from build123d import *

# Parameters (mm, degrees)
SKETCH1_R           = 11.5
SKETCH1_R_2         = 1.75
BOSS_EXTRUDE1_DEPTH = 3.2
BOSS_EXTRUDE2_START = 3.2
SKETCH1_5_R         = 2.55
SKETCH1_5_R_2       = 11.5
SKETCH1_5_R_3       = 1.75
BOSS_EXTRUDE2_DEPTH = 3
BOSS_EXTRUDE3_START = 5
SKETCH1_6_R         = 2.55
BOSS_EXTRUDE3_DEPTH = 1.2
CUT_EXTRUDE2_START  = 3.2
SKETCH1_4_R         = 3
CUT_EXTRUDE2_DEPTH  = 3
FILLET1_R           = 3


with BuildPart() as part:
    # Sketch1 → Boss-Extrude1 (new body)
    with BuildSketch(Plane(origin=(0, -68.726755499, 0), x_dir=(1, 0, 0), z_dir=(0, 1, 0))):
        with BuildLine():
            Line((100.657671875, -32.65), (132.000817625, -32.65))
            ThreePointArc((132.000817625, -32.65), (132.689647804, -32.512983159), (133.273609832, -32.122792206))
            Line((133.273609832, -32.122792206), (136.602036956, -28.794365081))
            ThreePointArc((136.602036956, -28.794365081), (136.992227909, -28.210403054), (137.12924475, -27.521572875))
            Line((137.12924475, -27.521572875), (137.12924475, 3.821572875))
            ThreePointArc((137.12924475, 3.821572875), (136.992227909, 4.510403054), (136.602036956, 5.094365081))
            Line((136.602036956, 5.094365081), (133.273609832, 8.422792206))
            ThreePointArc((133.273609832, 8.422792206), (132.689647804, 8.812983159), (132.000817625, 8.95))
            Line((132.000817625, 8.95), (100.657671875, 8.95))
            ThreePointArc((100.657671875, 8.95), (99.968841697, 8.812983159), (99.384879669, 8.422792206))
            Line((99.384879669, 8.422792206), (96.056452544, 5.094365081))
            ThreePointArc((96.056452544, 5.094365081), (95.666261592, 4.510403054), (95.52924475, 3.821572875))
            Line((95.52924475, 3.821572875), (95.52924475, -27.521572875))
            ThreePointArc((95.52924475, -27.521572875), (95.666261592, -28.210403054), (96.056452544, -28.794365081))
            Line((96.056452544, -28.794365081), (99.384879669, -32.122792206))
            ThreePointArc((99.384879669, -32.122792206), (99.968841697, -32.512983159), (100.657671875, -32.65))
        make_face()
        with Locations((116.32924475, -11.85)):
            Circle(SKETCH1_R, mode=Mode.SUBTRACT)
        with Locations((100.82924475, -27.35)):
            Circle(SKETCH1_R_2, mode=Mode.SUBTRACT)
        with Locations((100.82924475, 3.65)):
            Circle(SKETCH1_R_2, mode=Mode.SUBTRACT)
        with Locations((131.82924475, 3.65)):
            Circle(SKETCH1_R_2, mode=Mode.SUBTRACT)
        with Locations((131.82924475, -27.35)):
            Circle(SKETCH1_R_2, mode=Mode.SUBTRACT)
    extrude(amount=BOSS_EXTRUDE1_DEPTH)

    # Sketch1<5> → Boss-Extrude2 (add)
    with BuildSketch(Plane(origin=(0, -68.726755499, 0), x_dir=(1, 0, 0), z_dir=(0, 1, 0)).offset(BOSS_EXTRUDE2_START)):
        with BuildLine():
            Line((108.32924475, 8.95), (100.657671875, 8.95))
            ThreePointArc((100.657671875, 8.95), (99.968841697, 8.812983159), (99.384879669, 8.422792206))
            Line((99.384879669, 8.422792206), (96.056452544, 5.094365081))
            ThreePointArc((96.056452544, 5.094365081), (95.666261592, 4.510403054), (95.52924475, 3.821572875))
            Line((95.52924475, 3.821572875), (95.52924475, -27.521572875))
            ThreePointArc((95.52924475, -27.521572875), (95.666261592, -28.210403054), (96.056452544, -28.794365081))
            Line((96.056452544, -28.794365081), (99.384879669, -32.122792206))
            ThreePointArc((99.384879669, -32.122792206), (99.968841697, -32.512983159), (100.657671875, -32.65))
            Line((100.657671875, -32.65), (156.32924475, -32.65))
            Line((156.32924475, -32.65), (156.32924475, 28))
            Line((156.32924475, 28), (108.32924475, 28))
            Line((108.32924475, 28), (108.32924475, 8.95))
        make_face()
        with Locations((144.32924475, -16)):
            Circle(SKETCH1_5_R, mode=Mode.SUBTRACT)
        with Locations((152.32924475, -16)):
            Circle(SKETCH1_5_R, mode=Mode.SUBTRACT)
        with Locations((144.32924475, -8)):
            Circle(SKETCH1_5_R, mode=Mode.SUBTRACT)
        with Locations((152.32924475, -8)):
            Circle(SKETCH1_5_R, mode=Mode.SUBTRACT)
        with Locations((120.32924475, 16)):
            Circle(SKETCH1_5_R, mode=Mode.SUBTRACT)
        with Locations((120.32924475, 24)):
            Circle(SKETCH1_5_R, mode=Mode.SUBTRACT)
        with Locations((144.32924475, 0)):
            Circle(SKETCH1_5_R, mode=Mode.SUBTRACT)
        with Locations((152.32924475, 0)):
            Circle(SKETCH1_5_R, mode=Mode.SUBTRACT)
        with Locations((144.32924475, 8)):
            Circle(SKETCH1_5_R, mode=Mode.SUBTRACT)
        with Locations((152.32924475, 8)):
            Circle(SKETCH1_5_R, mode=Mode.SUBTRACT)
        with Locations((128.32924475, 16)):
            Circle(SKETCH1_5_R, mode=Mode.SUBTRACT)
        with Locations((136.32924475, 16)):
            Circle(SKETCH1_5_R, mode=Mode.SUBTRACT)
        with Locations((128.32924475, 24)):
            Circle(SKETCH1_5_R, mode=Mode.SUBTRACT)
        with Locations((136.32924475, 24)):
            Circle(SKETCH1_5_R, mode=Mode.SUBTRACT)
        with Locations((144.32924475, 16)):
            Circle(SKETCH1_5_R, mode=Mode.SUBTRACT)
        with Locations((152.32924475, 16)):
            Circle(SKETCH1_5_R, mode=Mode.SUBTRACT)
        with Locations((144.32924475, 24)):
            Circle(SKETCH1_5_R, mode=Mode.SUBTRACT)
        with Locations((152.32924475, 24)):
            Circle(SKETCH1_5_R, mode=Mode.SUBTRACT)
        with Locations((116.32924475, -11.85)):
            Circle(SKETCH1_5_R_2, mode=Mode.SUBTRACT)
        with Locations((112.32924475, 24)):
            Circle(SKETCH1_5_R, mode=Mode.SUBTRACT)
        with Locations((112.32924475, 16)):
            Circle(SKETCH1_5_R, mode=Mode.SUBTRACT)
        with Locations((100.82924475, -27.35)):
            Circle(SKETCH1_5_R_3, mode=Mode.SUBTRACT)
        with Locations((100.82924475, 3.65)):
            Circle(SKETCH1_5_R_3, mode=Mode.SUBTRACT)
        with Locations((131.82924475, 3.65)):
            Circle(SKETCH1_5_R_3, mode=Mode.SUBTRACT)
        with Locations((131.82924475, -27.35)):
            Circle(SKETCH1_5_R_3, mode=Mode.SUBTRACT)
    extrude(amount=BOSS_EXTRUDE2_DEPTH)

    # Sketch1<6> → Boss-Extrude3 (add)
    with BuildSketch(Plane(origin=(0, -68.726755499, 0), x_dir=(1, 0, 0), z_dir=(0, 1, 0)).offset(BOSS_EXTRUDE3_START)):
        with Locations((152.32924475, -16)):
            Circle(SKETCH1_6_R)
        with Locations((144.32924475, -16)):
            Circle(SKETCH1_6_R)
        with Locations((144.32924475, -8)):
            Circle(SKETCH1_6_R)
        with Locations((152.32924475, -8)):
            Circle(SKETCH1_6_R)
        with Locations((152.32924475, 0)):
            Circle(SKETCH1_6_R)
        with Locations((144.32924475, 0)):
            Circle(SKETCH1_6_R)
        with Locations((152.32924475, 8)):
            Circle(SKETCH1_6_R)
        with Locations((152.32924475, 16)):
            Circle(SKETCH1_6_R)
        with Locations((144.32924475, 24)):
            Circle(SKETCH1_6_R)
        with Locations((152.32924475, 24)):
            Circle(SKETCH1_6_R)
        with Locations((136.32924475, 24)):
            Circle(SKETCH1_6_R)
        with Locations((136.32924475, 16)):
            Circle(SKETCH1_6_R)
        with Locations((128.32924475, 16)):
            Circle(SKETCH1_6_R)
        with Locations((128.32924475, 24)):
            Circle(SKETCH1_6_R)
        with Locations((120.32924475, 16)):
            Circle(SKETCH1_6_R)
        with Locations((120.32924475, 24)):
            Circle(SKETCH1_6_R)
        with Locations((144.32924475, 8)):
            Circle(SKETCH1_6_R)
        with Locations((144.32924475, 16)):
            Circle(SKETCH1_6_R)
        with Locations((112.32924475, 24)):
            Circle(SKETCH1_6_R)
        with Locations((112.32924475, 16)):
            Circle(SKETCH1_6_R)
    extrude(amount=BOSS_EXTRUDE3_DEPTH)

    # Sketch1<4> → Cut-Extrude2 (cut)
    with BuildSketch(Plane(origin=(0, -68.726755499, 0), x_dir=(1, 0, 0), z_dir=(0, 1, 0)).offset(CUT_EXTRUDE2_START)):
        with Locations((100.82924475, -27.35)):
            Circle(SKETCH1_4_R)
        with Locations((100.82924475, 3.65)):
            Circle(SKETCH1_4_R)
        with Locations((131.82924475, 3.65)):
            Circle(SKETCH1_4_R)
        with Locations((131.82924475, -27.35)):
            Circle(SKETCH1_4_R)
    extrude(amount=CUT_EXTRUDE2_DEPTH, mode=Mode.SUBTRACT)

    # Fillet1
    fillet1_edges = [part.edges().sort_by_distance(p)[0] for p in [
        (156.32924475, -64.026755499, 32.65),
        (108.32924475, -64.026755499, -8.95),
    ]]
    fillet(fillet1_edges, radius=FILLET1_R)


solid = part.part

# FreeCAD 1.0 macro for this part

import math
import FreeCAD as App
import Part
import Sketcher

V = App.Vector


def edges_at(feature, points):
    """Names of the edges that pass closest to the given points."""
    edges = feature.Shape.Edges
    near = lambda p: min(range(len(edges)), key=lambda i: edges[i].distToShape(Part.Vertex(*p))[0])
    return sorted({f"Edge{near(p) + 1}" for p in points})

doc = App.newDocument("Part")
body = doc.addObject("PartDesign::Body", "Body")

sketch1 = body.newObject("Sketcher::SketchObject", "Sketch")
sketch1.AttachmentSupport = (doc.getObject("XZ_Plane"), [""])
sketch1.MapMode = "FlatFace"
sketch1.AttachmentOffset = App.Placement(V(0, 0, 68.726755), App.Rotation())
sketch1.addGeometry([
    Part.LineSegment(V(100.7, 32.6, 0), V(132, 32.6, 0)),
    Part.ArcOfCircle(Part.Circle(V(132, 30.9, 0), V(0, 0, 1), 1.8), math.radians(45), math.radians(90)),
    Part.LineSegment(V(133.3, 32.1, 0), V(136.6, 28.8, 0)),
    Part.ArcOfCircle(Part.Circle(V(135.3, 27.5, 0), V(0, 0, 1), 1.8), math.radians(0), math.radians(45)),
    Part.LineSegment(V(137.1, 27.5, 0), V(137.1, -3.8, 0)),
    Part.ArcOfCircle(Part.Circle(V(135.3, -3.8, 0), V(0, 0, 1), 1.8), math.radians(-45), math.radians(0)),
    Part.LineSegment(V(136.6, -5.1, 0), V(133.3, -8.4, 0)),
    Part.ArcOfCircle(Part.Circle(V(132, -7.2, 0), V(0, 0, 1), 1.8), math.radians(-90), math.radians(-45)),
    Part.LineSegment(V(132, -8.9, 0), V(100.7, -8.9, 0)),
    Part.ArcOfCircle(Part.Circle(V(100.7, -7.2, 0), V(0, 0, 1), 1.8), math.radians(-135), math.radians(-90)),
    Part.LineSegment(V(99.4, -8.4, 0), V(96.1, -5.1, 0)),
    Part.ArcOfCircle(Part.Circle(V(97.3, -3.8, 0), V(0, 0, 1), 1.8), math.radians(-180), math.radians(-135)),
    Part.LineSegment(V(95.5, -3.8, 0), V(95.5, 27.5, 0)),
    Part.ArcOfCircle(Part.Circle(V(97.3, 27.5, 0), V(0, 0, 1), 1.8), math.radians(135), math.radians(180)),
    Part.LineSegment(V(96.1, 28.8, 0), V(99.4, 32.1, 0)),
    Part.ArcOfCircle(Part.Circle(V(100.7, 30.9, 0), V(0, 0, 1), 1.8), math.radians(90), math.radians(135)),
    Part.Circle(V(100.8, 27.4, 0), V(0, 0, 1), 1.8),
    Part.Circle(V(131.8, 27.4, 0), V(0, 0, 1), 1.8),
    Part.Circle(V(100.8, -3.6, 0), V(0, 0, 1), 1.8),
    Part.Circle(V(116.3, 11.8, 0), V(0, 0, 1), 11.5),
    Part.Circle(V(131.8, -3.6, 0), V(0, 0, 1), 1.8),
], False)
sketch1.addConstraint([
    Sketcher.Constraint("Tangent", 0, 2, 1, 2),
    Sketcher.Constraint("Tangent", 1, 1, 2, 1),
    Sketcher.Constraint("Tangent", 2, 2, 3, 2),
    Sketcher.Constraint("Tangent", 3, 1, 4, 1),
    Sketcher.Constraint("Tangent", 4, 2, 5, 2),
    Sketcher.Constraint("Tangent", 5, 1, 6, 1),
    Sketcher.Constraint("Tangent", 6, 2, 7, 2),
    Sketcher.Constraint("Tangent", 7, 1, 8, 1),
    Sketcher.Constraint("Tangent", 8, 2, 9, 2),
    Sketcher.Constraint("Tangent", 9, 1, 10, 1),
    Sketcher.Constraint("Tangent", 10, 2, 11, 2),
    Sketcher.Constraint("Tangent", 11, 1, 12, 1),
    Sketcher.Constraint("Tangent", 12, 2, 13, 2),
    Sketcher.Constraint("Tangent", 13, 1, 14, 1),
    Sketcher.Constraint("Tangent", 14, 2, 15, 2),
    Sketcher.Constraint("Tangent", 15, 1, 0, 1),
    Sketcher.Constraint("Horizontal", 0),
    Sketcher.Constraint("Vertical", 4),
    Sketcher.Constraint("Horizontal", 8),
    Sketcher.Constraint("Vertical", 12),
    Sketcher.Constraint("Equal", 1, 3),
    Sketcher.Constraint("Equal", 3, 5),
    Sketcher.Constraint("Equal", 5, 7),
    Sketcher.Constraint("Equal", 7, 9),
    Sketcher.Constraint("Equal", 9, 11),
    Sketcher.Constraint("Equal", 11, 13),
    Sketcher.Constraint("Equal", 13, 15),
    Sketcher.Constraint("Equal", 16, 17),
    Sketcher.Constraint("Equal", 17, 18),
    Sketcher.Constraint("Equal", 18, 20),
    Sketcher.Constraint("Perpendicular", 2, 6),
    Sketcher.Constraint("Perpendicular", 6, 10),
    Sketcher.Constraint("Perpendicular", 10, 14),
    Sketcher.Constraint("Horizontal", 5, 3, 11, 3),
    Sketcher.Constraint("Horizontal", 3, 3, 13, 3),
    Sketcher.Constraint("Horizontal", 16, 3, 17, 3),
    Sketcher.Constraint("Horizontal", 18, 3, 20, 3),
    Sketcher.Constraint("Horizontal", 6, 2, 9, 1),
    Sketcher.Constraint("Vertical", 1, 3, 7, 3),
    Sketcher.Constraint("Vertical", 16, 3, 18, 3),
    Sketcher.Constraint("Vertical", 17, 3, 20, 3),
    Sketcher.Constraint("Equal", 8, 4),
    Sketcher.Constraint("Diameter", 19, 23.0),
    Sketcher.Constraint("Diameter", 16, 3.5),
    Sketcher.Constraint("Radius", 1, 1.8),
    Sketcher.Constraint("DistanceY", 7, 3, 1, 3, 38.0),
    Sketcher.Constraint("DistanceX", 16, 3, 17, 3, 31.0),
    Sketcher.Constraint("DistanceY", 18, 3, 16, 3, 31.0),
    Sketcher.Constraint("DistanceX", 11, 3, 19, 3, 19.0),
    Sketcher.Constraint("DistanceX", 13, 3, 16, 3, 3.5),
    Sketcher.Constraint("DistanceY", 16, 3, 15, 3, 3.5),
    Sketcher.Constraint("DistanceY", 19, 3, 17, 3, 15.5),
    Sketcher.Constraint("DistanceY", -1, 1, 1, 3, 30.85),
    Sketcher.Constraint("DistanceX", 0, 1, 0, 2, 31.343146),
    Sketcher.Constraint("DistanceX", -1, 1, 9, 3, 100.657672),
])
pad1 = body.newObject("PartDesign::Pad", "Pad")
pad1.Profile = sketch1
pad1.Length = 3.2
pad1.Reversed = True

sketch2 = body.newObject("Sketcher::SketchObject", "Sketch001")
sketch2.AttachmentSupport = (doc.getObject("XZ_Plane"), [""])
sketch2.MapMode = "FlatFace"
sketch2.AttachmentOffset = App.Placement(V(0, 0, 65.526755), App.Rotation())
sketch2.addGeometry([
    Part.LineSegment(V(108.3, -8.9, 0), V(100.7, -8.9, 0)),
    Part.ArcOfCircle(Part.Circle(V(100.7, -7.2, 0), V(0, 0, 1), 1.8), math.radians(-135), math.radians(-90)),
    Part.LineSegment(V(99.4, -8.4, 0), V(96.1, -5.1, 0)),
    Part.ArcOfCircle(Part.Circle(V(97.3, -3.8, 0), V(0, 0, 1), 1.8), math.radians(-180), math.radians(-135)),
    Part.LineSegment(V(95.5, -3.8, 0), V(95.5, 27.5, 0)),
    Part.ArcOfCircle(Part.Circle(V(97.3, 27.5, 0), V(0, 0, 1), 1.8), math.radians(135), math.radians(180)),
    Part.LineSegment(V(96.1, 28.8, 0), V(99.4, 32.1, 0)),
    Part.ArcOfCircle(Part.Circle(V(100.7, 30.9, 0), V(0, 0, 1), 1.8), math.radians(90), math.radians(135)),
    Part.LineSegment(V(100.7, 32.6, 0), V(156.3, 32.6, 0)),
    Part.LineSegment(V(156.3, 32.6, 0), V(156.3, -28, 0)),
    Part.LineSegment(V(156.3, -28, 0), V(108.3, -28, 0)),
    Part.LineSegment(V(108.3, -28, 0), V(108.3, -8.9, 0)),
    Part.Circle(V(100.8, 27.4, 0), V(0, 0, 1), 1.8),
    Part.Circle(V(116.3, 11.8, 0), V(0, 0, 1), 11.5),
    Part.Circle(V(131.8, 27.4, 0), V(0, 0, 1), 1.8),
    Part.Circle(V(144.3, 16, 0), V(0, 0, 1), 2.5),
    Part.Circle(V(152.3, 16, 0), V(0, 0, 1), 2.5),
    Part.Circle(V(144.3, 8, 0), V(0, 0, 1), 2.5),
    Part.Circle(V(152.3, 8, 0), V(0, 0, 1), 2.5),
    Part.Circle(V(100.8, -3.6, 0), V(0, 0, 1), 1.8),
    Part.Circle(V(112.3, -16, 0), V(0, 0, 1), 2.5),
    Part.Circle(V(112.3, -24, 0), V(0, 0, 1), 2.5),
    Part.Circle(V(120.3, -16, 0), V(0, 0, 1), 2.5),
    Part.Circle(V(120.3, -24, 0), V(0, 0, 1), 2.5),
    Part.Circle(V(131.8, -3.6, 0), V(0, 0, 1), 1.8),
    Part.Circle(V(144.3, 0, 0), V(0, 0, 1), 2.5),
    Part.Circle(V(152.3, 0, 0), V(0, 0, 1), 2.5),
    Part.Circle(V(144.3, -8, 0), V(0, 0, 1), 2.5),
    Part.Circle(V(152.3, -8, 0), V(0, 0, 1), 2.5),
    Part.Circle(V(128.3, -16, 0), V(0, 0, 1), 2.5),
    Part.Circle(V(136.3, -16, 0), V(0, 0, 1), 2.5),
    Part.Circle(V(128.3, -24, 0), V(0, 0, 1), 2.5),
    Part.Circle(V(136.3, -24, 0), V(0, 0, 1), 2.5),
    Part.Circle(V(144.3, -16, 0), V(0, 0, 1), 2.5),
    Part.Circle(V(152.3, -16, 0), V(0, 0, 1), 2.5),
    Part.Circle(V(144.3, -24, 0), V(0, 0, 1), 2.5),
    Part.Circle(V(152.3, -24, 0), V(0, 0, 1), 2.5),
], False)
sketch2.addConstraint([
    Sketcher.Constraint("Tangent", 0, 2, 1, 2),
    Sketcher.Constraint("Tangent", 1, 1, 2, 1),
    Sketcher.Constraint("Tangent", 2, 2, 3, 2),
    Sketcher.Constraint("Tangent", 3, 1, 4, 1),
    Sketcher.Constraint("Tangent", 4, 2, 5, 2),
    Sketcher.Constraint("Tangent", 5, 1, 6, 1),
    Sketcher.Constraint("Tangent", 6, 2, 7, 2),
    Sketcher.Constraint("Tangent", 7, 1, 8, 1),
    Sketcher.Constraint("Coincident", 8, 2, 9, 1),
    Sketcher.Constraint("Coincident", 9, 2, 10, 1),
    Sketcher.Constraint("Coincident", 10, 2, 11, 1),
    Sketcher.Constraint("Coincident", 11, 2, 0, 1),
    Sketcher.Constraint("Horizontal", 0),
    Sketcher.Constraint("Vertical", 4),
    Sketcher.Constraint("Horizontal", 8),
    Sketcher.Constraint("Vertical", 9),
    Sketcher.Constraint("Horizontal", 10),
    Sketcher.Constraint("Vertical", 11),
    Sketcher.Constraint("Equal", 1, 3),
    Sketcher.Constraint("Equal", 3, 5),
    Sketcher.Constraint("Equal", 5, 7),
    Sketcher.Constraint("Equal", 12, 14),
    Sketcher.Constraint("Equal", 15, 16),
    Sketcher.Constraint("Equal", 16, 17),
    Sketcher.Constraint("Equal", 17, 18),
    Sketcher.Constraint("Equal", 14, 19),
    Sketcher.Constraint("Equal", 18, 20),
    Sketcher.Constraint("Equal", 20, 21),
    Sketcher.Constraint("Equal", 21, 22),
    Sketcher.Constraint("Equal", 22, 23),
    Sketcher.Constraint("Equal", 19, 24),
    Sketcher.Constraint("Equal", 23, 25),
    Sketcher.Constraint("Equal", 25, 26),
    Sketcher.Constraint("Equal", 26, 27),
    Sketcher.Constraint("Equal", 27, 28),
    Sketcher.Constraint("Equal", 28, 29),
    Sketcher.Constraint("Equal", 29, 30),
    Sketcher.Constraint("Equal", 30, 31),
    Sketcher.Constraint("Equal", 31, 32),
    Sketcher.Constraint("Equal", 32, 33),
    Sketcher.Constraint("Equal", 33, 34),
    Sketcher.Constraint("Equal", 34, 35),
    Sketcher.Constraint("Equal", 35, 36),
    Sketcher.Constraint("Symmetric", 17, 3, 27, 3, -1),
    Sketcher.Constraint("Symmetric", 18, 3, 28, 3, -1),
    Sketcher.Constraint("Symmetric", 15, 3, 33, 3, -1),
    Sketcher.Constraint("Symmetric", 16, 3, 34, 3, -1),
    Sketcher.Constraint("PointOnObject", 25, 3, -1),
    Sketcher.Constraint("PointOnObject", 26, 3, -1),
    Sketcher.Constraint("Perpendicular", 2, 6),
    Sketcher.Constraint("Horizontal", 12, 3, 14, 3),
    Sketcher.Constraint("Horizontal", 15, 3, 16, 3),
    Sketcher.Constraint("Horizontal", 17, 3, 18, 3),
    Sketcher.Constraint("Horizontal", 20, 3, 22, 3),
    Sketcher.Constraint("Horizontal", 21, 3, 23, 3),
    Sketcher.Constraint("Horizontal", 19, 3, 24, 3),
    Sketcher.Constraint("Horizontal", 22, 3, 29, 3),
    Sketcher.Constraint("Horizontal", 29, 3, 30, 3),
    Sketcher.Constraint("Horizontal", 23, 3, 31, 3),
    Sketcher.Constraint("Horizontal", 31, 3, 32, 3),
    Sketcher.Constraint("Horizontal", 30, 3, 33, 3),
    Sketcher.Constraint("Horizontal", 32, 3, 35, 3),
    Sketcher.Constraint("Horizontal", 35, 3, 36, 3),
    Sketcher.Constraint("Vertical", 1, 3, 7, 3),
    Sketcher.Constraint("Vertical", 15, 3, 17, 3),
    Sketcher.Constraint("Vertical", 16, 3, 18, 3),
    Sketcher.Constraint("Vertical", 12, 3, 19, 3),
    Sketcher.Constraint("Vertical", 20, 3, 21, 3),
    Sketcher.Constraint("Vertical", 22, 3, 23, 3),
    Sketcher.Constraint("Vertical", 14, 3, 24, 3),
    Sketcher.Constraint("Vertical", 17, 3, 25, 3),
    Sketcher.Constraint("Vertical", 18, 3, 26, 3),
    Sketcher.Constraint("Vertical", 29, 3, 31, 3),
    Sketcher.Constraint("Vertical", 30, 3, 32, 3),
    Sketcher.Constraint("Vertical", 33, 3, 35, 3),
    Sketcher.Constraint("Vertical", 34, 3, 36, 3),
    Sketcher.Constraint("Vertical", 2, 2, 5, 1),
    Sketcher.Constraint("Diameter", 13, 23.0),
    Sketcher.Constraint("Diameter", 12, 3.5),
    Sketcher.Constraint("Diameter", 15, 5.1),
    Sketcher.Constraint("Radius", 1, 1.8),
    Sketcher.Constraint("DistanceX", 10, 2, 10, 1, 48.0),
    Sketcher.Constraint("DistanceY", -1, 1, 15, 3, 16.0),
    Sketcher.Constraint("DistanceY", -1, 1, 17, 3, 8.0),
    Sketcher.Constraint("DistanceY", 21, 3, -1, 1, 24.0),
    Sketcher.Constraint("DistanceY", 9, 2, -1, 1, 28.0),
    Sketcher.Constraint("DistanceY", 1, 3, 7, 3, 38.0),
    Sketcher.Constraint("DistanceX", 3, 3, 13, 3, 19.0),
    Sketcher.Constraint("DistanceY", 13, 3, 7, 3, 19.0),
    Sketcher.Constraint("DistanceX", 12, 3, 14, 3, 31.0),
    Sketcher.Constraint("DistanceX", 13, 3, 15, 3, 28.0),
    Sketcher.Constraint("DistanceX", 15, 3, 16, 3, 8.0),
    Sketcher.Constraint("DistanceY", 19, 3, 12, 3, 31.0),
    Sketcher.Constraint("DistanceX", 3, 3, 20, 3, 15.0),
    Sketcher.Constraint("DistanceX", 20, 3, 22, 3, 8.0),
    Sketcher.Constraint("DistanceX", 22, 3, 29, 3, 8.0),
    Sketcher.Constraint("DistanceX", 29, 3, 30, 3, 8.0),
    Sketcher.Constraint("DistanceX", 16, 3, 8, 2, 4.0),
    Sketcher.Constraint("DistanceY", 9, 2, 9, 1, 60.65),
    Sketcher.Constraint("DistanceX", 5, 3, 12, 3, 3.5),
    Sketcher.Constraint("DistanceY", 12, 3, 7, 3, 3.5),
    Sketcher.Constraint("DistanceX", 0, 2, 0, 1, 7.671573),
    Sketcher.Constraint("DistanceX", -1, 1, 1, 3, 100.657672),
])
pad2 = body.newObject("PartDesign::Pad", "Pad001")
pad2.Profile = sketch2
pad2.Length = 3
pad2.Reversed = True

sketch3 = body.newObject("Sketcher::SketchObject", "Sketch002")
sketch3.AttachmentSupport = (doc.getObject("XZ_Plane"), [""])
sketch3.MapMode = "FlatFace"
sketch3.AttachmentOffset = App.Placement(V(0, 0, 63.726755), App.Rotation())
sketch3.addGeometry([
    Part.Circle(V(152.3, 16, 0), V(0, 0, 1), 2.5),
    Part.Circle(V(144.3, 16, 0), V(0, 0, 1), 2.5),
    Part.Circle(V(144.3, 8, 0), V(0, 0, 1), 2.5),
    Part.Circle(V(152.3, 8, 0), V(0, 0, 1), 2.5),
    Part.Circle(V(152.3, 0, 0), V(0, 0, 1), 2.5),
    Part.Circle(V(144.3, 0, 0), V(0, 0, 1), 2.5),
    Part.Circle(V(152.3, -8, 0), V(0, 0, 1), 2.5),
    Part.Circle(V(152.3, -16, 0), V(0, 0, 1), 2.5),
    Part.Circle(V(144.3, -24, 0), V(0, 0, 1), 2.5),
    Part.Circle(V(152.3, -24, 0), V(0, 0, 1), 2.5),
    Part.Circle(V(136.3, -24, 0), V(0, 0, 1), 2.5),
    Part.Circle(V(136.3, -16, 0), V(0, 0, 1), 2.5),
    Part.Circle(V(128.3, -16, 0), V(0, 0, 1), 2.5),
    Part.Circle(V(128.3, -24, 0), V(0, 0, 1), 2.5),
    Part.Circle(V(120.3, -16, 0), V(0, 0, 1), 2.5),
    Part.Circle(V(120.3, -24, 0), V(0, 0, 1), 2.5),
    Part.Circle(V(144.3, -8, 0), V(0, 0, 1), 2.5),
    Part.Circle(V(144.3, -16, 0), V(0, 0, 1), 2.5),
    Part.Circle(V(112.3, -24, 0), V(0, 0, 1), 2.5),
    Part.Circle(V(112.3, -16, 0), V(0, 0, 1), 2.5),
], False)
sketch3.addConstraint([
    Sketcher.Constraint("Equal", 0, 1),
    Sketcher.Constraint("Equal", 1, 2),
    Sketcher.Constraint("Equal", 2, 3),
    Sketcher.Constraint("Equal", 3, 4),
    Sketcher.Constraint("Equal", 4, 5),
    Sketcher.Constraint("Equal", 5, 6),
    Sketcher.Constraint("Equal", 6, 7),
    Sketcher.Constraint("Equal", 7, 8),
    Sketcher.Constraint("Equal", 8, 9),
    Sketcher.Constraint("Equal", 9, 10),
    Sketcher.Constraint("Equal", 10, 11),
    Sketcher.Constraint("Equal", 11, 12),
    Sketcher.Constraint("Equal", 12, 13),
    Sketcher.Constraint("Equal", 13, 14),
    Sketcher.Constraint("Equal", 14, 15),
    Sketcher.Constraint("Equal", 15, 16),
    Sketcher.Constraint("Equal", 16, 17),
    Sketcher.Constraint("Equal", 17, 18),
    Sketcher.Constraint("Equal", 18, 19),
    Sketcher.Constraint("Symmetric", 3, 3, 6, 3, -1),
    Sketcher.Constraint("Symmetric", 0, 3, 7, 3, -1),
    Sketcher.Constraint("Symmetric", 2, 3, 16, 3, -1),
    Sketcher.Constraint("Symmetric", 1, 3, 17, 3, -1),
    Sketcher.Constraint("PointOnObject", 4, 3, -1),
    Sketcher.Constraint("PointOnObject", 5, 3, -1),
    Sketcher.Constraint("Horizontal", 0, 3, 1, 3),
    Sketcher.Constraint("Horizontal", 2, 3, 3, 3),
    Sketcher.Constraint("Horizontal", 8, 3, 9, 3),
    Sketcher.Constraint("Horizontal", 9, 3, 10, 3),
    Sketcher.Constraint("Horizontal", 7, 3, 11, 3),
    Sketcher.Constraint("Horizontal", 11, 3, 12, 3),
    Sketcher.Constraint("Horizontal", 10, 3, 13, 3),
    Sketcher.Constraint("Horizontal", 12, 3, 14, 3),
    Sketcher.Constraint("Horizontal", 13, 3, 15, 3),
    Sketcher.Constraint("Horizontal", 15, 3, 18, 3),
    Sketcher.Constraint("Horizontal", 17, 3, 19, 3),
    Sketcher.Constraint("Vertical", 1, 3, 2, 3),
    Sketcher.Constraint("Vertical", 0, 3, 3, 3),
    Sketcher.Constraint("Vertical", 3, 3, 4, 3),
    Sketcher.Constraint("Vertical", 2, 3, 5, 3),
    Sketcher.Constraint("Vertical", 5, 3, 8, 3),
    Sketcher.Constraint("Vertical", 7, 3, 9, 3),
    Sketcher.Constraint("Vertical", 10, 3, 11, 3),
    Sketcher.Constraint("Vertical", 12, 3, 13, 3),
    Sketcher.Constraint("Vertical", 14, 3, 15, 3),
    Sketcher.Constraint("Vertical", 18, 3, 19, 3),
    Sketcher.Constraint("Diameter", 0, 5.1),
    Sketcher.Constraint("DistanceY", -1, 1, 0, 3, 16.0),
    Sketcher.Constraint("DistanceY", -1, 1, 2, 3, 8.0),
    Sketcher.Constraint("DistanceY", 8, 3, -1, 1, 24.0),
    Sketcher.Constraint("DistanceX", 1, 3, 0, 3, 8.0),
    Sketcher.Constraint("DistanceX", 10, 3, 8, 3, 8.0),
    Sketcher.Constraint("DistanceX", 12, 3, 11, 3, 8.0),
    Sketcher.Constraint("DistanceX", 14, 3, 12, 3, 8.0),
    Sketcher.Constraint("DistanceX", 18, 3, 15, 3, 8.0),
    Sketcher.Constraint("DistanceX", -1, 1, 0, 3, 152.329245),
])
pad3 = body.newObject("PartDesign::Pad", "Pad002")
pad3.Profile = sketch3
pad3.Length = 1.2
pad3.Reversed = True

sketch4 = body.newObject("Sketcher::SketchObject", "Sketch003")
sketch4.AttachmentSupport = (doc.getObject("XZ_Plane"), [""])
sketch4.MapMode = "FlatFace"
sketch4.AttachmentOffset = App.Placement(V(0, 0, 65.526755), App.Rotation())
sketch4.addGeometry([
    Part.Circle(V(100.8, 27.4, 0), V(0, 0, 1), 3),
    Part.Circle(V(100.8, -3.6, 0), V(0, 0, 1), 3),
    Part.Circle(V(131.8, -3.6, 0), V(0, 0, 1), 3),
    Part.Circle(V(131.8, 27.4, 0), V(0, 0, 1), 3),
], False)
sketch4.addConstraint([
    Sketcher.Constraint("Equal", 0, 1),
    Sketcher.Constraint("Equal", 1, 2),
    Sketcher.Constraint("Equal", 2, 3),
    Sketcher.Constraint("Horizontal", 1, 3, 2, 3),
    Sketcher.Constraint("Horizontal", 0, 3, 3, 3),
    Sketcher.Constraint("Vertical", 0, 3, 1, 3),
    Sketcher.Constraint("Vertical", 2, 3, 3, 3),
    Sketcher.Constraint("Diameter", 0, 6.0),
    Sketcher.Constraint("DistanceY", 1, 3, 0, 3, 31.0),
    Sketcher.Constraint("DistanceX", 1, 3, 2, 3, 31.0),
    Sketcher.Constraint("DistanceY", -1, 1, 0, 3, 27.35),
    Sketcher.Constraint("DistanceX", -1, 1, 0, 3, 100.829245),
])
pocket1 = body.newObject("PartDesign::Pocket", "Pocket")
pocket1.Profile = sketch4
pocket1.Length = 3
doc.recompute()

fillet = body.newObject("PartDesign::Fillet", "Fillet")
fillet.Base = (pocket1, edges_at(pocket1, [(156.329, -64.027, 32.65), (108.329, -64.027, -8.95)]))
fillet.Radius = 3

doc.recompute()
